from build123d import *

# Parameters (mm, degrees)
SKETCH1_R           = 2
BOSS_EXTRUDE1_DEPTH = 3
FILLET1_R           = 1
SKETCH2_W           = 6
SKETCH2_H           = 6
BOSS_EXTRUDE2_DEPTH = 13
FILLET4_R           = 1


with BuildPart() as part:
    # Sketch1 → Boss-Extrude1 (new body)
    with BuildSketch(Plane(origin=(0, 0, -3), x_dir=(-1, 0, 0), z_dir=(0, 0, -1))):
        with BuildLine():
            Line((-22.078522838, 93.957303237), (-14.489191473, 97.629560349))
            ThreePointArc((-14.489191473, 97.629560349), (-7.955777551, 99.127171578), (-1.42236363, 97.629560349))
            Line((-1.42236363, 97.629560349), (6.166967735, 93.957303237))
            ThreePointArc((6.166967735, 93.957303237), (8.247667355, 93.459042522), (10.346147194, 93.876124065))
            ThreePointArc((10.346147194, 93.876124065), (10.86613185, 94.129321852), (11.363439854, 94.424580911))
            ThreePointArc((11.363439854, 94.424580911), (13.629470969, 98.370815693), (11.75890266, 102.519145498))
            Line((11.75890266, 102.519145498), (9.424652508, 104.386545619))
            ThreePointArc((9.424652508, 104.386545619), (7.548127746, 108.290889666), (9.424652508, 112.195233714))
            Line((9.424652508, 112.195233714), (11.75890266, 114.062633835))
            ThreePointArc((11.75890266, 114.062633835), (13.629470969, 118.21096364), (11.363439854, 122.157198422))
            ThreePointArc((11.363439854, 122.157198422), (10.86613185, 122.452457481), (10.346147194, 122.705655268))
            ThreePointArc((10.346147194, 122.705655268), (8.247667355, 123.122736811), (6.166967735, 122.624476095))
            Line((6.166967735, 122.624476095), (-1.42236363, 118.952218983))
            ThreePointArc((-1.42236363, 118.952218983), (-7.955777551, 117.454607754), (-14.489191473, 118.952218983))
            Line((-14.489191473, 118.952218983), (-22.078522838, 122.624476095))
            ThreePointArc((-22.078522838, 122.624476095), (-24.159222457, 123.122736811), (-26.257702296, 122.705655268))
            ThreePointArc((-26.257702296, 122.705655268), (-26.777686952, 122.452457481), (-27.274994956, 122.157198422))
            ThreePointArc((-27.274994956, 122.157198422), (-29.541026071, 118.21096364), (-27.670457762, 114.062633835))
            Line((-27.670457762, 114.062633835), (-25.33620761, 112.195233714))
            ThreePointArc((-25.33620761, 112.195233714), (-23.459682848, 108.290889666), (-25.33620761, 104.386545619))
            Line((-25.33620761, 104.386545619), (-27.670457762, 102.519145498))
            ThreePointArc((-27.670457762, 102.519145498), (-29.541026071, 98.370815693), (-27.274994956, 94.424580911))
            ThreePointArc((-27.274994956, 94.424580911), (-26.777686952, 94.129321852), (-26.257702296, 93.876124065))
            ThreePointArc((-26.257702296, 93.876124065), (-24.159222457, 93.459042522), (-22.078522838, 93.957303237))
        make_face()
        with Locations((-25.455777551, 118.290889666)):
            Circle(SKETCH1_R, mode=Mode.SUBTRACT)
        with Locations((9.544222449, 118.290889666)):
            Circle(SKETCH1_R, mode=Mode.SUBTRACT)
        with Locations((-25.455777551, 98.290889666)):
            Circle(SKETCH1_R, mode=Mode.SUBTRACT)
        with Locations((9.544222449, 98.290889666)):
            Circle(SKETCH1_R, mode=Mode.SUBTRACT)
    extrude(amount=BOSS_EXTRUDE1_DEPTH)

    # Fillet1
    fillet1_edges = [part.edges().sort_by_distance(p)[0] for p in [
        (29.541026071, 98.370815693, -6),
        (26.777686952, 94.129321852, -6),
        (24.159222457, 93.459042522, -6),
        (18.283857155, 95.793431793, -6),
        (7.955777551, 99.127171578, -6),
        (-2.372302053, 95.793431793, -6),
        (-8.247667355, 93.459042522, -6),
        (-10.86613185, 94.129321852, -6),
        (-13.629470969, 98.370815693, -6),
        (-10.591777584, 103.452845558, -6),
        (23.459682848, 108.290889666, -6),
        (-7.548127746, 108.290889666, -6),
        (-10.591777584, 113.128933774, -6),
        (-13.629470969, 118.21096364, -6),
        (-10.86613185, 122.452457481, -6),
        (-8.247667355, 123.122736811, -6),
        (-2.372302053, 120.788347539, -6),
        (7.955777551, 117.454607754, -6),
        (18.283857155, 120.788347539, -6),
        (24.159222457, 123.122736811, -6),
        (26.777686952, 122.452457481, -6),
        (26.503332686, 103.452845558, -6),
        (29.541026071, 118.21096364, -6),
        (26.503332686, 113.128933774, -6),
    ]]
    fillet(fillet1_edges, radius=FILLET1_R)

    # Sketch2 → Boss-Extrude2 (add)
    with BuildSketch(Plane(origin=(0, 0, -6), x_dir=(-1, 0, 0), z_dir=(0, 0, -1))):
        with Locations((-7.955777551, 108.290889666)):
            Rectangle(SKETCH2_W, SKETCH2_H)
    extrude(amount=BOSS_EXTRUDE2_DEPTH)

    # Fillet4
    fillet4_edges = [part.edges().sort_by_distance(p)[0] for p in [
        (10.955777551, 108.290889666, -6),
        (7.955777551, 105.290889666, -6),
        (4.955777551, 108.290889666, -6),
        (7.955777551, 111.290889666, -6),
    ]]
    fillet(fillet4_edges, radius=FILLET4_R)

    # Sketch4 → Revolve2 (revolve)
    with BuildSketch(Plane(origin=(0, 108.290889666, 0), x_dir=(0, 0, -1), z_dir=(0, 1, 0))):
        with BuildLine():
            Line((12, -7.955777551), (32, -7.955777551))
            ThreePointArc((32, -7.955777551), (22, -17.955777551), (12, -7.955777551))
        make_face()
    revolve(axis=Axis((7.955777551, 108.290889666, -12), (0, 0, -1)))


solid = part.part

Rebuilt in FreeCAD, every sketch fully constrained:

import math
import FreeCAD as App
import Part
import Sketcher
from FreeCAD import Vector
Q = App.Units.Quantity


def edges_at(feature, points):
    """Names of the edges that pass closest to the given points."""
    edges = feature.Shape.Edges
    near = lambda p: min(range(len(edges)), key=lambda i: edges[i].distToShape(Part.Vertex(*p))[0])
    return sorted({f"Edge{near(p) + 1}" for p in points})

doc = App.newDocument("Part")
body = doc.addObject("PartDesign::Body", "Body")

# Sketch on XY plane
sketch1 = doc.addObject("Sketcher::SketchObject", "Sketch")
body.addObject(sketch1)
sketch1.AttachmentSupport = (doc.XY_Plane, [""])
sketch1.MapMode = "FlatFace"
sketch1.AttachmentOffset = App.Placement(Vector(0, 0, -3), App.Rotation())
sketch1.addGeometry([
    Part.LineSegment(Vector(22.1, 94, 0), Vector(14.5, 97.6, 0)),  # 0
    Part.ArcOfCircle(Part.Circle(Vector(8, 84.1, 0), Vector(0, 0, 1), 15), math.radians(64), math.radians(116)),  # 1
    Part.LineSegment(Vector(1.4, 97.6, 0), Vector(-6.2, 94, 0)),  # 2
    Part.ArcOfCircle(Part.Circle(Vector(-8.3, 98.5, 0), Vector(0, 0, 1), 5), math.radians(-114), math.radians(-64)),  # 3
    Part.ArcOfCircle(Part.Circle(Vector(-7.5, 100.3, 0), Vector(0, 0, 1), 7), math.radians(-123.07), math.radians(-113.6)),  # 4
    Part.ArcOfCircle(Part.Circle(Vector(-8.6, 98.6, 0), Vector(0, 0, 1), 5), math.radians(129), math.radians(237)),  # 5
    Part.LineSegment(Vector(-11.8, 102.5, 0), Vector(-9.4, 104.4, 0)),  # 6
    Part.ArcOfCircle(Part.Circle(Vector(-12.5, 108.3, 0), Vector(0, 0, 1), 5), math.radians(-51), math.radians(51)),  # 7
    Part.LineSegment(Vector(-9.4, 112.2, 0), Vector(-11.8, 114.1, 0)),  # 8
    Part.ArcOfCircle(Part.Circle(Vector(-8.6, 118, 0), Vector(0, 0, 1), 5), math.radians(123), math.radians(231)),  # 9
    Part.ArcOfCircle(Part.Circle(Vector(-7.5, 116.3, 0), Vector(0, 0, 1), 7), math.radians(113.6), math.radians(123.07)),  # 10
    Part.ArcOfCircle(Part.Circle(Vector(-8.3, 118.1, 0), Vector(0, 0, 1), 5), math.radians(64), math.radians(114)),  # 11
    Part.LineSegment(Vector(-6.2, 122.6, 0), Vector(1.4, 119, 0)),  # 12
    Part.ArcOfCircle(Part.Circle(Vector(8, 132.5, 0), Vector(0, 0, 1), 15), math.radians(-116), math.radians(-64)),  # 13
    Part.LineSegment(Vector(14.5, 119, 0), Vector(22.1, 122.6, 0)),  # 14
    Part.ArcOfCircle(Part.Circle(Vector(24.3, 118.1, 0), Vector(0, 0, 1), 5), math.radians(66), math.radians(116)),  # 15
    Part.ArcOfCircle(Part.Circle(Vector(23.5, 116.3, 0), Vector(0, 0, 1), 7), math.radians(56.93), math.radians(66.4)),  # 16
    Part.ArcOfCircle(Part.Circle(Vector(24.5, 118, 0), Vector(0, 0, 1), 5), math.radians(-51), math.radians(57)),  # 17
    Part.LineSegment(Vector(27.7, 114.1, 0), Vector(25.3, 112.2, 0)),  # 18
    Part.ArcOfCircle(Part.Circle(Vector(28.5, 108.3, 0), Vector(0, 0, 1), 5), math.radians(129), math.radians(231)),  # 19
    Part.LineSegment(Vector(25.3, 104.4, 0), Vector(27.7, 102.5, 0)),  # 20
    Part.ArcOfCircle(Part.Circle(Vector(24.5, 98.6, 0), Vector(0, 0, 1), 5), math.radians(-57), math.radians(51)),  # 21
    Part.ArcOfCircle(Part.Circle(Vector(23.5, 100.3, 0), Vector(0, 0, 1), 7), math.radians(-66.4), math.radians(-56.93)),  # 22
    Part.ArcOfCircle(Part.Circle(Vector(24.3, 98.5, 0), Vector(0, 0, 1), 5), math.radians(-116), math.radians(-66)),  # 23
    Part.Circle(Vector(25.5, 98.3, 0), Vector(0, 0, 1), 2),  # 24
    Part.Circle(Vector(-9.5, 98.3, 0), Vector(0, 0, 1), 2),  # 25
    Part.Circle(Vector(25.5, 118.3, 0), Vector(0, 0, 1), 2),  # 26
    Part.Circle(Vector(-9.5, 118.3, 0), Vector(0, 0, 1), 2),  # 27
], False)
sketch1.addConstraint([
    Sketcher.Constraint("Tangent", 0, 2, 1, 1),
    Sketcher.Constraint("Tangent", 1, 2, 2, 1),
    Sketcher.Constraint("Tangent", 2, 2, 3, 2),
    Sketcher.Constraint("Tangent", 3, 1, 4, 2),
    Sketcher.Constraint("Tangent", 4, 1, 5, 2),
    Sketcher.Constraint("Tangent", 5, 1, 6, 1),
    Sketcher.Constraint("Tangent", 6, 2, 7, 1),
    Sketcher.Constraint("Tangent", 7, 2, 8, 1),
    Sketcher.Constraint("Tangent", 8, 2, 9, 2),
    Sketcher.Constraint("Tangent", 9, 1, 10, 2),
    Sketcher.Constraint("Tangent", 10, 1, 11, 2),
    Sketcher.Constraint("Tangent", 11, 1, 12, 1),
    Sketcher.Constraint("Tangent", 12, 2, 13, 1),
    Sketcher.Constraint("Tangent", 13, 2, 14, 1),
    Sketcher.Constraint("Tangent", 14, 2, 15, 2),
    Sketcher.Constraint("Tangent", 15, 1, 16, 2),
    Sketcher.Constraint("Tangent", 16, 1, 17, 2),
    Sketcher.Constraint("Tangent", 17, 1, 18, 1),
    Sketcher.Constraint("Tangent", 18, 2, 19, 1),
    Sketcher.Constraint("Tangent", 19, 2, 20, 1),
    Sketcher.Constraint("Tangent", 20, 2, 21, 2),
    Sketcher.Constraint("Tangent", 21, 1, 22, 2),
    Sketcher.Constraint("Tangent", 22, 1, 23, 2),
    Sketcher.Constraint("Tangent", 23, 1, 0, 1),
    Sketcher.Constraint("Equal", 3, 5),
    Sketcher.Constraint("Equal", 5, 7),
    Sketcher.Constraint("Equal", 7, 9),
    Sketcher.Constraint("Equal", 4, 10),
    Sketcher.Constraint("Equal", 9, 11),
    Sketcher.Constraint("Equal", 1, 13),
    Sketcher.Constraint("Equal", 11, 15),
    Sketcher.Constraint("Equal", 10, 16),
    Sketcher.Constraint("Equal", 15, 17),
    Sketcher.Constraint("Equal", 17, 19),
    Sketcher.Constraint("Equal", 19, 21),
    Sketcher.Constraint("Equal", 16, 22),
    Sketcher.Constraint("Equal", 21, 23),
    Sketcher.Constraint("Equal", 24, 25),
    Sketcher.Constraint("Equal", 25, 26),
    Sketcher.Constraint("Equal", 26, 27),
    Sketcher.Constraint("Parallel", 0, 12),
    Sketcher.Constraint("Parallel", 2, 14),
    Sketcher.Constraint("Parallel", 6, 18),
    Sketcher.Constraint("Parallel", 8, 20),
    Sketcher.Constraint("Horizontal", 11, 3, 15, 3),
    Sketcher.Constraint("Horizontal", 10, 3, 16, 3),
    Sketcher.Constraint("Horizontal", 9, 3, 17, 3),
    Sketcher.Constraint("Horizontal", 7, 3, 19, 3),
    Sketcher.Constraint("Horizontal", 5, 3, 21, 3),
    Sketcher.Constraint("Horizontal", 4, 3, 22, 3),
    Sketcher.Constraint("Horizontal", 3, 3, 23, 3),
    Sketcher.Constraint("Horizontal", 24, 3, 25, 3),
    Sketcher.Constraint("Horizontal", 26, 3, 27, 3),
    Sketcher.Constraint("Horizontal", 0, 2, 1, 2),
    Sketcher.Constraint("Horizontal", 8, 2, 17, 1),
    Sketcher.Constraint("Vertical", 5, 3, 9, 3),
    Sketcher.Constraint("Vertical", 4, 3, 10, 3),
    Sketcher.Constraint("Vertical", 3, 3, 11, 3),
    Sketcher.Constraint("Vertical", 24, 3, 26, 3),
    Sketcher.Constraint("Vertical", 25, 3, 27, 3),
    Sketcher.Constraint("Diameter", 24, Q("4 mm")),
    Sketcher.Constraint("Radius", 1, Q("15 mm")),
    Sketcher.Constraint("Radius", 3, Q("5 mm")),
    Sketcher.Constraint("Radius", 4, Q("7 mm")),
    Sketcher.Constraint("DistanceY", 4, 3, 7, 3, Q("8 mm")),
    Sketcher.Constraint("DistanceX", 10, 3, 16, 3, Q("31 mm")),
    Sketcher.Constraint("DistanceX", 22, 3, 24, 3, Q("2 mm")),
    Sketcher.Constraint("DistanceY", 24, 3, 22, 3, Q("2 mm")),
    Sketcher.Constraint("DistanceX", 25, 3, 4, 3, Q("2 mm")),
    Sketcher.Constraint("DistanceY", 16, 3, 26, 3, Q("2 mm")),
    Sketcher.Constraint("Distance", 0, Q("8.431099 mm")),
    Sketcher.Constraint("Distance", 6, Q("2.989299 mm")),
    Sketcher.Constraint("DistanceY", -1, 1, 3, 3, Q("98.458099 mm")),
    Sketcher.Constraint("DistanceY", -1, 1, 5, 3, Q("98.614801 mm")),
    Sketcher.Constraint("DistanceY", -1, 1, 9, 1, Q("122.157198 mm")),
    Sketcher.Constraint("DistanceX", -1, 1, 0, 2, Q("14.489191 mm")),
])
pad1 = doc.addObject("PartDesign::Pad", "Pad")
body.addObject(pad1)
pad1.Profile = sketch1
pad1.Length = 3
pad1.Reversed = True
doc.recompute()

fillet = doc.addObject("PartDesign::Fillet", "Fillet")
body.addObject(fillet)
fillet.Base = (pad1, edges_at(pad1, [
    (29.541, 98.371, -6),
    (26.778, 94.129, -6),
    (24.159, 93.459, -6),
    (18.284, 95.793, -6),
    (7.956, 99.127, -6),
    (-2.372, 95.793, -6),
    (-8.248, 93.459, -6),
    (-10.866, 94.129, -6),
    (-13.629, 98.371, -6),
    (-10.592, 103.453, -6),
    (23.46, 108.291, -6),
    (-7.548, 108.291, -6),
    (-10.592, 113.129, -6),
    (-13.629, 118.211, -6),
    (-10.866, 122.452, -6),
    (-8.248, 123.123, -6),
    (-2.372, 120.788, -6),
    (7.956, 117.455, -6),
    (18.284, 120.788, -6),
    (24.159, 123.123, -6),
    (26.778, 122.452, -6),
    (26.503, 103.453, -6),
    (29.541, 118.211, -6),
    (26.503, 113.129, -6),
]))
fillet.Radius = 1

# Sketch on XY plane
sketch2 = doc.addObject("Sketcher::SketchObject", "Sketch001")
body.addObject(sketch2)
sketch2.AttachmentSupport = (doc.XY_Plane, [""])
sketch2.MapMode = "FlatFace"
sketch2.AttachmentOffset = App.Placement(Vector(0, 0, -6), App.Rotation())
sketch2.addGeometry([
    Part.LineSegment(Vector(11, 111, 0), Vector(11, 105, 0)),
    Part.LineSegment(Vector(11, 105, 0), Vector(5, 105, 0)),
    Part.LineSegment(Vector(5, 105, 0), Vector(5, 111, 0)),
    Part.LineSegment(Vector(5, 111, 0), Vector(11, 111, 0)),
], False)
sketch2.addConstraint([
    Sketcher.Constraint("Coincident", 0, 2, 1, 1),
    Sketcher.Constraint("Coincident", 1, 2, 2, 1),
    Sketcher.Constraint("Coincident", 2, 2, 3, 1),
    Sketcher.Constraint("Coincident", 3, 2, 0, 1),
    Sketcher.Constraint("Vertical", 0),
    Sketcher.Constraint("Horizontal", 1),
    Sketcher.Constraint("Vertical", 2),
    Sketcher.Constraint("Horizontal", 3),
    Sketcher.Constraint("Equal", 3, 0),
    Sketcher.Constraint("DistanceX", 1, 2, 1, 1, Q("6 mm")),
    Sketcher.Constraint("DistanceY", -1, 1, 0, 2, Q("105.29089 mm")),
    Sketcher.Constraint("DistanceX", -1, 1, 0, 2, Q("10.955778 mm")),
])
pad2 = doc.addObject("PartDesign::Pad", "Pad001")
body.addObject(pad2)
pad2.Profile = sketch2
pad2.Length = 13
pad2.Reversed = True
doc.recompute()

fillet2 = doc.addObject("PartDesign::Fillet", "Fillet001")
body.addObject(fillet2)
fillet2.Base = (pad2, edges_at(pad2, [
    (10.956, 108.291, -6),
    (7.956, 105.291, -6),
    (4.956, 108.291, -6),
    (7.956, 111.291, -6),
]))
fillet2.Radius = 1

# Sketch on XZ plane
sketch3 = doc.addObject("Sketcher::SketchObject", "Sketch002")
body.addObject(sketch3)
sketch3.AttachmentSupport = (doc.XZ_Plane, [""])
sketch3.MapMode = "FlatFace"
sketch3.AttachmentOffset = App.Placement(Vector(0, 0, -108.29089), App.Rotation())
sketch3.addGeometry([
    Part.LineSegment(Vector(8, -32, 0), Vector(8, -12, 0)),
    Part.ArcOfCircle(Part.Circle(Vector(8, -22, 0), Vector(0, 0, 1), 10), math.radians(-90), math.radians(90)),
], False)
sketch3.addGeometry(Part.LineSegment(Vector(8, -12, 0), Vector(8, -32, 0)), True)  # axis
sketch3.addConstraint([
    Sketcher.Constraint("Coincident", 0, 1, 1, 1),
    Sketcher.Constraint("Coincident", 1, 2, 0, 2),
    Sketcher.Constraint("Vertical", 0),
    Sketcher.Constraint("Vertical", 2),
    Sketcher.Constraint("Coincident", 2, 1, 1, 2),
    Sketcher.Constraint("Vertical", 1, 3, 0, 1),
    Sketcher.Constraint("Equal", 0, 2),
    Sketcher.Constraint("Radius", 1, Q("10 mm")),
    Sketcher.Constraint("DistanceY", 1, 3, -1, 1, Q("22 mm")),
    Sketcher.Constraint("DistanceX", -1, 1, 1, 3, Q("7.955778 mm")),
])
revolution = doc.addObject("PartDesign::Revolution", "Revolution")
body.addObject(revolution)
revolution.Profile = sketch3
revolution.ReferenceAxis = (sketch3, ["Axis0"])
revolution.Angle = 360

doc.recompute()
